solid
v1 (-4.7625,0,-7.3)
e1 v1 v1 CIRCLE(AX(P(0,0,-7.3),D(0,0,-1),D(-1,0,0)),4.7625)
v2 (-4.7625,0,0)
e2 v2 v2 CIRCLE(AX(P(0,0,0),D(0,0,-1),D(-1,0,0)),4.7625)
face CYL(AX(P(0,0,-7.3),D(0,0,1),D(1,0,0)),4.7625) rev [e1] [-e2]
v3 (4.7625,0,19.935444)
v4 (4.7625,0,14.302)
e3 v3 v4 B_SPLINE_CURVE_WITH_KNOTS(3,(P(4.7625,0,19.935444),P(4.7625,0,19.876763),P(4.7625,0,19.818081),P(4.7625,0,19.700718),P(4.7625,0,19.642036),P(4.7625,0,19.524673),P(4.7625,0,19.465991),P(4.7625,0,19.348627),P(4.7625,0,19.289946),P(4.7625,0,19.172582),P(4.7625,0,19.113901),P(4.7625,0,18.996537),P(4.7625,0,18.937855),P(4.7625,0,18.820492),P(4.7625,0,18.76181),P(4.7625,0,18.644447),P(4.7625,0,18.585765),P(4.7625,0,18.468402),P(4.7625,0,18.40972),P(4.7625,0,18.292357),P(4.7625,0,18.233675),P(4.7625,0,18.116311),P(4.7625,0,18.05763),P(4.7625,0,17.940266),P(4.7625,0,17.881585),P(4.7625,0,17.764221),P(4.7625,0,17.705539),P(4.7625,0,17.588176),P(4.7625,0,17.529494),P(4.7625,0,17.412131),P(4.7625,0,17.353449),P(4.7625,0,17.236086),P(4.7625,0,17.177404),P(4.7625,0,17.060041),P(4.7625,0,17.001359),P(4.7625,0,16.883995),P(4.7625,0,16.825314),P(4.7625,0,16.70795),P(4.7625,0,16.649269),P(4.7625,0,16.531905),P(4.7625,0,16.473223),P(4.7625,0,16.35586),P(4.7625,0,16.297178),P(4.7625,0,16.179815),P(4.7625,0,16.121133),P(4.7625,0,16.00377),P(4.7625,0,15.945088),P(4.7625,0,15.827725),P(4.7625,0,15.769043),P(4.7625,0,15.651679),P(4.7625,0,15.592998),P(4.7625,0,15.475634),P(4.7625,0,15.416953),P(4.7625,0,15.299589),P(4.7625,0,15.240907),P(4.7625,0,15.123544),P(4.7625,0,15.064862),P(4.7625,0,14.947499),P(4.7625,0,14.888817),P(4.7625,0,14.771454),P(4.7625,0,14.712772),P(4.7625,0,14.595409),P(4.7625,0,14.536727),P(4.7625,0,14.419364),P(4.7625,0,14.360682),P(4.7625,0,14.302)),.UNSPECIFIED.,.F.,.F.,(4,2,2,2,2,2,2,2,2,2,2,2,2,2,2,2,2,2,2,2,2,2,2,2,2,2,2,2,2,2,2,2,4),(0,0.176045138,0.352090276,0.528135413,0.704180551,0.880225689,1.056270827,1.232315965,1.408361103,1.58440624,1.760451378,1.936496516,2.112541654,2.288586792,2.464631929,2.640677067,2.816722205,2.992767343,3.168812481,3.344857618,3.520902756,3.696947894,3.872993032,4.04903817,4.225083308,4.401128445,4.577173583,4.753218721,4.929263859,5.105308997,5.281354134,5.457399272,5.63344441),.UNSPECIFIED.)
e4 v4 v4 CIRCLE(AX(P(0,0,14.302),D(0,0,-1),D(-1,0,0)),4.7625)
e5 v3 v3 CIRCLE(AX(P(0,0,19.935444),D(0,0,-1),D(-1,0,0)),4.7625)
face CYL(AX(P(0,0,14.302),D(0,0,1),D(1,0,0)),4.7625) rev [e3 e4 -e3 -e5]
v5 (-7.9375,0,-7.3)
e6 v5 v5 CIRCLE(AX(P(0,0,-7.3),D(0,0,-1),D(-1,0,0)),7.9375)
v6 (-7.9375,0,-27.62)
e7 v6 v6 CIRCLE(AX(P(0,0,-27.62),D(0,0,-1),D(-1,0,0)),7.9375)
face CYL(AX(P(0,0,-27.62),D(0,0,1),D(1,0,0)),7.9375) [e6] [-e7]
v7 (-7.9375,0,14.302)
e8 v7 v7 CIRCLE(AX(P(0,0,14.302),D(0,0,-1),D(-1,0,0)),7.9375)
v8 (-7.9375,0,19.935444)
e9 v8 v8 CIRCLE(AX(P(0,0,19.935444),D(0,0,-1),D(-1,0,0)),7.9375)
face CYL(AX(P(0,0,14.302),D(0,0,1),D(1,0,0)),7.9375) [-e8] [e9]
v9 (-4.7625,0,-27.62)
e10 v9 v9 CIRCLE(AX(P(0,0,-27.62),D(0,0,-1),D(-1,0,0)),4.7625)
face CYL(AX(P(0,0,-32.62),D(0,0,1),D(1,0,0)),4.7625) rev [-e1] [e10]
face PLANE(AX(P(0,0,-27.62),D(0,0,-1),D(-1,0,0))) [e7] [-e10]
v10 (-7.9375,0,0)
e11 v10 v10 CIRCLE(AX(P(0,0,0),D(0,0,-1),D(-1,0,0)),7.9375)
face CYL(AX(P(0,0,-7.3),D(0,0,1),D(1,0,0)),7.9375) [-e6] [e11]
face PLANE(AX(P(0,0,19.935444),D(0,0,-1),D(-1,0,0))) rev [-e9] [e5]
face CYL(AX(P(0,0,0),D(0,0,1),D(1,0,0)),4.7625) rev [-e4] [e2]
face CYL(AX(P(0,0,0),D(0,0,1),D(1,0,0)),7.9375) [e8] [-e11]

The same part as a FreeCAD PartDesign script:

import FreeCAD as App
import Part
import Sketcher

V = App.Vector
Q = App.Units.Quantity

doc = App.newDocument("Part")
body = doc.addObject("PartDesign::Body", "Body")

# Sketch on XY plane
sketch1 = body.newObject("Sketcher::SketchObject", "Sketch")
sketch1.AttachmentSupport = (doc.getObject("XY_Plane"), [""])
sketch1.MapMode = "FlatFace"
sketch1.AttachmentOffset = App.Placement(V(0, 0, 19.935444), App.Rotation())
sketch1.addGeometry(Part.Circle(V(0, 0, 0), V(0, 0, 1), 8), False)
sketch1.addConstraint(Sketcher.Constraint("Coincident", 0, 3, -1, 1))
sketch1.addConstraint(Sketcher.Constraint("Diameter", 0, Q("0.625 in")))

# Sketch on XZ plane
sketch2 = body.newObject("Sketcher::SketchObject", "Sketch001")
sketch2.AttachmentSupport = (doc.getObject("XZ_Plane"), [""])
sketch2.MapMode = "FlatFace"
sketch2.addGeometry(Part.LineSegment(V(0, 20, 0), V(0, 14, 0)), False)
sketch2.addGeometry(Part.LineSegment(V(0, 14, 0), V(0, -28, 0)), False)
sketch2.addConstraint(Sketcher.Constraint("Coincident", 0, 2, 1, 1))
sketch2.addConstraint(Sketcher.Constraint("Vertical", 0))
sketch2.addConstraint(Sketcher.Constraint("Vertical", 1))
sketch2.addConstraint(Sketcher.Constraint("PointOnObject", 0, 1, -2))
sketch2.addConstraint(Sketcher.Constraint("DistanceY", 1, 2, 1, 1, 41.922))
sketch2.addConstraint(Sketcher.Constraint("DistanceY", -1, 1, 0, 2, 14.302))
sketch2.addConstraint(Sketcher.Constraint("DistanceY", 0, 2, 0, 1, 5.633444))
doc.recompute()

additivepipe = body.newObject("PartDesign::AdditivePipe", "AdditivePipe")
additivepipe.Profile = sketch1
additivepipe.Spine = (sketch2, ["Edge1", "Edge2"])

# Sketch on XY plane
sketch3 = body.newObject("Sketcher::SketchObject", "Sketch002")
sketch3.AttachmentSupport = (doc.getObject("XY_Plane"), [""])
sketch3.MapMode = "FlatFace"
sketch3.AttachmentOffset = App.Placement(V(0, 0, 19.935444), App.Rotation())
sketch3.addGeometry(Part.Circle(V(0, 0, 0), V(0, 0, 1), 4.8), False)
sketch3.addConstraint(Sketcher.Constraint("Coincident", 0, 3, -1, 1))
sketch3.addConstraint(Sketcher.Constraint("Diameter", 0, Q("0.375 in")))

# Sketch on XZ plane
sketch4 = body.newObject("Sketcher::SketchObject", "Sketch003")
sketch4.AttachmentSupport = (doc.getObject("XZ_Plane"), [""])
sketch4.MapMode = "FlatFace"
sketch4.addGeometry(Part.LineSegment(V(0, 20, 0), V(0, 14, 0)), False)
sketch4.addGeometry(Part.LineSegment(V(0, 14, 0), V(0, -28, 0)), False)
sketch4.addConstraint(Sketcher.Constraint("Coincident", 0, 2, 1, 1))
sketch4.addConstraint(Sketcher.Constraint("Vertical", 0))
sketch4.addConstraint(Sketcher.Constraint("Vertical", 1))
sketch4.addConstraint(Sketcher.Constraint("PointOnObject", 0, 1, -2))
sketch4.addConstraint(Sketcher.Constraint("DistanceY", 1, 2, 1, 1, 41.922))
sketch4.addConstraint(Sketcher.Constraint("DistanceY", -1, 1, 0, 2, 14.302))
sketch4.addConstraint(Sketcher.Constraint("DistanceY", 0, 2, 0, 1, 5.633444))
doc.recompute()

subtractivepipe = body.newObject("PartDesign::SubtractivePipe", "SubtractivePipe")
subtractivepipe.Profile = sketch3
subtractivepipe.Spine = (sketch4, ["Edge1", "Edge2"])

doc.recompute()
